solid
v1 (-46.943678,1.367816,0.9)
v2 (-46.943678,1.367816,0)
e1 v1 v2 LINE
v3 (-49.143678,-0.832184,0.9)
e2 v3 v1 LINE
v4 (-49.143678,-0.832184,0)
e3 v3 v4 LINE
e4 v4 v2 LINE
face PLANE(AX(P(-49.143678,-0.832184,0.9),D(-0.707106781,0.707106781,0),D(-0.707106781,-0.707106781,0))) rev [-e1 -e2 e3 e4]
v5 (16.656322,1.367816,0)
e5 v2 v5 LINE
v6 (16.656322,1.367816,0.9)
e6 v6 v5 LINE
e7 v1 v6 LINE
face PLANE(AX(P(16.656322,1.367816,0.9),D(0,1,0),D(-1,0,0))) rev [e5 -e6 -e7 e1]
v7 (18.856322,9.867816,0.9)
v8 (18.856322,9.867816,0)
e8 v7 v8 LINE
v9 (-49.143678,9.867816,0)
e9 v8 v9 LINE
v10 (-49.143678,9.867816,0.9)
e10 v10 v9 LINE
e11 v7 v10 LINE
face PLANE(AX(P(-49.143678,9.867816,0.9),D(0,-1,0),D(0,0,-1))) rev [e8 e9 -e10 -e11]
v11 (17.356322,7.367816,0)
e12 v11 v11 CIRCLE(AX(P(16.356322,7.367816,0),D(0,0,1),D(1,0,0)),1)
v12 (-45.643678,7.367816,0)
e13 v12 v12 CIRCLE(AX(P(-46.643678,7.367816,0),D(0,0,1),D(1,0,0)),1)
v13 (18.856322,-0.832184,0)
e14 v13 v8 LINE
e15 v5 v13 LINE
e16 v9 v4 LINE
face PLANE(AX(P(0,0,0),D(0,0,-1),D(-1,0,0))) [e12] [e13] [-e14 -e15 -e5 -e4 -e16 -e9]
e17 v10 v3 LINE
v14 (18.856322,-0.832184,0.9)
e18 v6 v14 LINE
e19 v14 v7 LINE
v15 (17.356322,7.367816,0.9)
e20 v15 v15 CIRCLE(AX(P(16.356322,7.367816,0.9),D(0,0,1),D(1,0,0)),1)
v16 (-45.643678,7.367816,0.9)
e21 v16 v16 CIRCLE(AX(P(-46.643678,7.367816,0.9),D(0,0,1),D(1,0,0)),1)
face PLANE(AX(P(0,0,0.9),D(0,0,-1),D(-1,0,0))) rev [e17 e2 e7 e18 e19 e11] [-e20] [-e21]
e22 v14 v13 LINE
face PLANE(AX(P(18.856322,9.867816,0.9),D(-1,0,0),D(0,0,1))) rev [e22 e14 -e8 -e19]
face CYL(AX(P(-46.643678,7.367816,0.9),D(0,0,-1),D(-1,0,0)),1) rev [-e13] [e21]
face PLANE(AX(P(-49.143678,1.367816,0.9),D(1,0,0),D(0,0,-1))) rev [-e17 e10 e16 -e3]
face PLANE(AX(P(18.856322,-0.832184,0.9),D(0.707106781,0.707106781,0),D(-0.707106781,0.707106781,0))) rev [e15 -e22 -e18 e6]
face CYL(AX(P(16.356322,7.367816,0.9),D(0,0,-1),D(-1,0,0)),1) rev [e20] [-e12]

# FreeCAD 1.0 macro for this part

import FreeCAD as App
import Part
import Sketcher
from FreeCAD import Vector

doc = App.newDocument("Part")
body = doc.addObject("PartDesign::Body", "Body")

# Sketch on XY plane
sketch1 = body.newObject("Sketcher::SketchObject", "Sketch")
sketch1.AttachmentSupport = (doc.getObject("XY_Plane"), [""])
sketch1.MapMode = "FlatFace"
sketch1.addGeometry(Part.LineSegment(Vector(-49.143678, -0.832184, 0), Vector(-46.943678, 1.367816, 0)), False)
sketch1.addGeometry(Part.LineSegment(Vector(-46.943678, 1.367816, 0), Vector(16.656322, 1.367816, 0)), False)
sketch1.addGeometry(Part.LineSegment(Vector(16.656322, 1.367816, 0), Vector(18.856322, -0.832184, 0)), False)
sketch1.addGeometry(Part.LineSegment(Vector(18.856322, -0.832184, 0), Vector(18.856322, 9.867816, 0)), False)
sketch1.addGeometry(Part.LineSegment(Vector(18.856322, 9.867816, 0), Vector(-49.143678, 9.867816, 0)), False)
sketch1.addGeometry(Part.LineSegment(Vector(-49.143678, 9.867816, 0), Vector(-49.143678, -0.832184, 0)), False)
sketch1.addGeometry(Part.Circle(Vector(-46.643678, 7.367816, 0), Vector(0, 0, 1), 1), False)
sketch1.addGeometry(Part.Circle(Vector(16.356322, 7.367816, 0), Vector(0, 0, 1), 1), False)
sketch1.addConstraint(Sketcher.Constraint("Coincident", 0, 2, 1, 1))
sketch1.addConstraint(Sketcher.Constraint("Coincident", 1, 2, 2, 1))
sketch1.addConstraint(Sketcher.Constraint("Coincident", 2, 2, 3, 1))
sketch1.addConstraint(Sketcher.Constraint("Coincident", 3, 2, 4, 1))
sketch1.addConstraint(Sketcher.Constraint("Coincident", 4, 2, 5, 1))
sketch1.addConstraint(Sketcher.Constraint("Coincident", 5, 2, 0, 1))
sketch1.addConstraint(Sketcher.Constraint("Horizontal", 1))
sketch1.addConstraint(Sketcher.Constraint("Vertical", 3))
sketch1.addConstraint(Sketcher.Constraint("Horizontal", 4))
sketch1.addConstraint(Sketcher.Constraint("Vertical", 5))
sketch1.addConstraint(Sketcher.Constraint("Equal", 6, 7))
sketch1.addConstraint(Sketcher.Constraint("Perpendicular", 0, 2))
sketch1.addConstraint(Sketcher.Constraint("Horizontal", 6, 3, 7, 3))
sketch1.addConstraint(Sketcher.Constraint("Horizontal", 2, 2, 5, 2))
sketch1.addConstraint(Sketcher.Constraint("Equal", 0, 2))
sketch1.addConstraint(Sketcher.Constraint("Diameter", 6, 2.0))
sketch1.addConstraint(Sketcher.Constraint("DistanceX", 4, 2, 4, 1, 68.0))
sketch1.addConstraint(Sketcher.Constraint("DistanceX", 1, 1, 1, 2, 63.6))
sketch1.addConstraint(Sketcher.Constraint("DistanceY", 3, 1, 3, 2, 10.7))
sketch1.addConstraint(Sketcher.Constraint("DistanceX", 6, 3, 7, 3, 63.0))
sketch1.addConstraint(Sketcher.Constraint("DistanceY", 0, 2, 6, 3, 6.0))
sketch1.addConstraint(Sketcher.Constraint("DistanceX", 0, 2, 6, 3, 0.3))
sketch1.addConstraint(Sketcher.Constraint("DistanceX", 6, 3, -1, 1, 46.643678))
sketch1.addConstraint(Sketcher.Constraint("DistanceY", -1, 1, 6, 3, 7.367816))
pad1 = body.newObject("PartDesign::Pad", "Pad")
pad1.Profile = sketch1
pad1.Length = 0.9

doc.recompute()
